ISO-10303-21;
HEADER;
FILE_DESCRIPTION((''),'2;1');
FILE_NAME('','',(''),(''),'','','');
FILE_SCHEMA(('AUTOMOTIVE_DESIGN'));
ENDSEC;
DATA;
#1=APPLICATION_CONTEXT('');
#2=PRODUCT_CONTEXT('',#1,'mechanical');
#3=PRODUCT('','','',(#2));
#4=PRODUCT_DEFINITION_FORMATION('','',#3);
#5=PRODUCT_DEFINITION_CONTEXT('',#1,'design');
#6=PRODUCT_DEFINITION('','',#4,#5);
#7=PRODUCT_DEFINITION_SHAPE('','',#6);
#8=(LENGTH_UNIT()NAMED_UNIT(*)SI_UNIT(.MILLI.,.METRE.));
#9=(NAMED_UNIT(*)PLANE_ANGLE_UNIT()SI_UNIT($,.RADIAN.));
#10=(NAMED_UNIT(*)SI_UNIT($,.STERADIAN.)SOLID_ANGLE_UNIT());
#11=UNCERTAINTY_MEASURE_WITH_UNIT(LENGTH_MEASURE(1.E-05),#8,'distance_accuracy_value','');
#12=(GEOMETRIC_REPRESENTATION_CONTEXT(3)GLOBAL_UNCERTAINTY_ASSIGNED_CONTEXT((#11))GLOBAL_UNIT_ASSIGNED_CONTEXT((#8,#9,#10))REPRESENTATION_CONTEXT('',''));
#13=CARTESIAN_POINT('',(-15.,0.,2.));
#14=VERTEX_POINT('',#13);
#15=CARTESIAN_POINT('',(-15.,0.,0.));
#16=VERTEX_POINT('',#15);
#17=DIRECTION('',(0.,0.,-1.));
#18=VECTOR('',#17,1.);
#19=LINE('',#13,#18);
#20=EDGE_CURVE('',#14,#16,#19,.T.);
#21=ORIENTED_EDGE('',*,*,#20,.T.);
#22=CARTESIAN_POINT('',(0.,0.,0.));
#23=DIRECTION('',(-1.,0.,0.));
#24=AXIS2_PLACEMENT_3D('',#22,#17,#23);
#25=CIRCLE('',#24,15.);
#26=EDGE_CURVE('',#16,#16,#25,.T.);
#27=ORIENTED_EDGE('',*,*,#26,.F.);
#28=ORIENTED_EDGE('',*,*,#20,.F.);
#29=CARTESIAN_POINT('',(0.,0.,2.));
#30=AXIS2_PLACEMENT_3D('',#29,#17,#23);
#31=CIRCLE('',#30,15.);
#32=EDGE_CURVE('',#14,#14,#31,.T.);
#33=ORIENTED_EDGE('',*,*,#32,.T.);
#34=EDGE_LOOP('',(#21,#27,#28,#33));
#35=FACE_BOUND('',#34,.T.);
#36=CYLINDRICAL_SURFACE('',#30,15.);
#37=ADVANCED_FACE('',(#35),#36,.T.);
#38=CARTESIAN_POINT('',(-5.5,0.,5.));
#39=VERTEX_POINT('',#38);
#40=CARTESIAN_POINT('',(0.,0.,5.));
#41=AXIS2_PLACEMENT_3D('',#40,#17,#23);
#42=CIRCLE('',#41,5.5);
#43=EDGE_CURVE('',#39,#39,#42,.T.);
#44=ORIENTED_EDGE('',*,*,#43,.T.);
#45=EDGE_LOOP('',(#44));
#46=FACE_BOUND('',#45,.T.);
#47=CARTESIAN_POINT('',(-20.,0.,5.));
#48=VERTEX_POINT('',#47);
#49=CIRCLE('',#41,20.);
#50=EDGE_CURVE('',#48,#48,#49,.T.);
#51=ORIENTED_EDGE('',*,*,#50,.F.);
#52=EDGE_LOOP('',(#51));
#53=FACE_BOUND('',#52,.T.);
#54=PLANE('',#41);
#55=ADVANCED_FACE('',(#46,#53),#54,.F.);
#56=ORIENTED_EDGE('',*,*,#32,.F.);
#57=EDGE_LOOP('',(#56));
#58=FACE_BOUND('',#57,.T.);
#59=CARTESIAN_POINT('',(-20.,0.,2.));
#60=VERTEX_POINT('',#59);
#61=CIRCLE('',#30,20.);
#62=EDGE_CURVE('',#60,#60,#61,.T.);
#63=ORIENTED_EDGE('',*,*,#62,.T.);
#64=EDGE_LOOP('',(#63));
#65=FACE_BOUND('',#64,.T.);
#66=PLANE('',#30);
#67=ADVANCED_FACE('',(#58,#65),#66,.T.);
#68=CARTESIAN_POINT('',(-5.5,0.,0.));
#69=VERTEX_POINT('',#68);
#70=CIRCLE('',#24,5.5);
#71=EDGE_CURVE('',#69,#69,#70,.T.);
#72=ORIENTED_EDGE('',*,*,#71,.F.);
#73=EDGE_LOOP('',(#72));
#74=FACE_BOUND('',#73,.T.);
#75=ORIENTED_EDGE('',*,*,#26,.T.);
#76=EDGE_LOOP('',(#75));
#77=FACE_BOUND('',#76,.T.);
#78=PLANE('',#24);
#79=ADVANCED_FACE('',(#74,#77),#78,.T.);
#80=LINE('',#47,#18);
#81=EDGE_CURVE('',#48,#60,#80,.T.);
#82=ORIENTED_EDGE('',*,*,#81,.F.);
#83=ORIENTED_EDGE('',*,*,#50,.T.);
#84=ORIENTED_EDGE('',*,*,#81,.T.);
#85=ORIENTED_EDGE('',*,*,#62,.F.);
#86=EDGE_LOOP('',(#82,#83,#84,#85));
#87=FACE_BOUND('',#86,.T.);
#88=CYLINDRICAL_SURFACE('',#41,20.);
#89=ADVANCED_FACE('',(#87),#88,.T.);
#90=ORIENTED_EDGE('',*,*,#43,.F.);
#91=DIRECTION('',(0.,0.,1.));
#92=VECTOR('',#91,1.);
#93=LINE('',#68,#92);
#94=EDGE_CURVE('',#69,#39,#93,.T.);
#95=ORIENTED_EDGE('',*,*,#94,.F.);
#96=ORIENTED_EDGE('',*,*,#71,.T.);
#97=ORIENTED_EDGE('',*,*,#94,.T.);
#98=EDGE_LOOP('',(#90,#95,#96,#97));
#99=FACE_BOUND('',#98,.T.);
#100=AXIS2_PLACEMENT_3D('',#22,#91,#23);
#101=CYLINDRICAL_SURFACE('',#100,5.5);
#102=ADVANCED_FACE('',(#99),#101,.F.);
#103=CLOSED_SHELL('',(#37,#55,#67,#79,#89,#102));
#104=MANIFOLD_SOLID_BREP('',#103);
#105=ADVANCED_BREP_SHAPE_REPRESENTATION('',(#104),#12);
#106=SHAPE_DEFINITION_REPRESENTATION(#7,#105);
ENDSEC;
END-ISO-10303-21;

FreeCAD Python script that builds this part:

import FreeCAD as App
import Part
import Sketcher
from FreeCAD import Vector
Q = App.Units.Quantity

doc = App.newDocument("Part")
params = doc.addObject("Spreadsheet::Sheet", "Params")
for row, (alias, value) in enumerate([
    ("sketch1_width", "5 mm"),
    ("sketch1_height", "3 mm"),
    ("sketch1_width2", "9.5 mm"),
    ("revolution_angle", "360 deg"),
], start=1):
    params.set(f"A{row}", alias)
    params.set(f"B{row}", "=" + value)
    params.setAlias(f"B{row}", alias)

body = doc.addObject("PartDesign::Body", "Body")

sketch1 = body.newObject("Sketcher::SketchObject", "Sketch")
sketch1.AttachmentSupport = (doc.getObject("XZ_Plane"), [""])
sketch1.MapMode = "FlatFace"
sketch1.addGeometry(Part.LineSegment(Vector(-15, 0, 0), Vector(-5.5, 0, 0)), False)
sketch1.addGeometry(Part.LineSegment(Vector(-5.5, 0, 0), Vector(-5.5, 5, 0)), False)
sketch1.addGeometry(Part.LineSegment(Vector(-5.5, 5, 0), Vector(-20, 5, 0)), False)
sketch1.addGeometry(Part.LineSegment(Vector(-20, 5, 0), Vector(-20, 2, 0)), False)
sketch1.addGeometry(Part.LineSegment(Vector(-20, 2, 0), Vector(-15, 2, 0)), False)
sketch1.addGeometry(Part.LineSegment(Vector(-15, 2, 0), Vector(-15, 0, 0)), False)
sketch1.addConstraint(Sketcher.Constraint("Coincident", 0, 2, 1, 1))
sketch1.addConstraint(Sketcher.Constraint("Coincident", 1, 2, 2, 1))
sketch1.addConstraint(Sketcher.Constraint("Coincident", 2, 2, 3, 1))
sketch1.addConstraint(Sketcher.Constraint("Coincident", 3, 2, 4, 1))
sketch1.addConstraint(Sketcher.Constraint("Coincident", 4, 2, 5, 1))
sketch1.addConstraint(Sketcher.Constraint("Coincident", 5, 2, 0, 1))
sketch1.addConstraint(Sketcher.Constraint("Horizontal", 0))
sketch1.addConstraint(Sketcher.Constraint("Vertical", 1))
sketch1.addConstraint(Sketcher.Constraint("Horizontal", 2))
sketch1.addConstraint(Sketcher.Constraint("Vertical", 3))
sketch1.addConstraint(Sketcher.Constraint("Horizontal", 4))
sketch1.addConstraint(Sketcher.Constraint("Vertical", 5))
sketch1.addConstraint(Sketcher.Constraint("PointOnObject", 0, 2, -1))
sketch1.addConstraint(Sketcher.Constraint("Equal", 4, 1))
sketch1.addConstraint(Sketcher.Constraint("DistanceX", 4, 2, -1, 1, Q("15 mm")))
sketch1.addConstraint(Sketcher.Constraint("DistanceX", 4, 1, 4, 2, Q("5 mm")))
sketch1.addConstraint(Sketcher.Constraint("DistanceY", 3, 2, 3, 1, Q("3 mm")))
sketch1.addConstraint(Sketcher.Constraint("DistanceX", 0, 1, 0, 2, Q("9.5 mm")))
sketch1.setExpression("Constraints[15]", "Params.sketch1_width")
sketch1.setExpression("Constraints[16]", "Params.sketch1_height")
sketch1.setExpression("Constraints[17]", "Params.sketch1_width2")
revolution = body.newObject("PartDesign::Revolution", "Revolution")
revolution.Profile = sketch1
revolution.ReferenceAxis = (sketch1, ["V_Axis"])
revolution.setExpression("Angle", "Params.revolution_angle")

doc.recompute()
